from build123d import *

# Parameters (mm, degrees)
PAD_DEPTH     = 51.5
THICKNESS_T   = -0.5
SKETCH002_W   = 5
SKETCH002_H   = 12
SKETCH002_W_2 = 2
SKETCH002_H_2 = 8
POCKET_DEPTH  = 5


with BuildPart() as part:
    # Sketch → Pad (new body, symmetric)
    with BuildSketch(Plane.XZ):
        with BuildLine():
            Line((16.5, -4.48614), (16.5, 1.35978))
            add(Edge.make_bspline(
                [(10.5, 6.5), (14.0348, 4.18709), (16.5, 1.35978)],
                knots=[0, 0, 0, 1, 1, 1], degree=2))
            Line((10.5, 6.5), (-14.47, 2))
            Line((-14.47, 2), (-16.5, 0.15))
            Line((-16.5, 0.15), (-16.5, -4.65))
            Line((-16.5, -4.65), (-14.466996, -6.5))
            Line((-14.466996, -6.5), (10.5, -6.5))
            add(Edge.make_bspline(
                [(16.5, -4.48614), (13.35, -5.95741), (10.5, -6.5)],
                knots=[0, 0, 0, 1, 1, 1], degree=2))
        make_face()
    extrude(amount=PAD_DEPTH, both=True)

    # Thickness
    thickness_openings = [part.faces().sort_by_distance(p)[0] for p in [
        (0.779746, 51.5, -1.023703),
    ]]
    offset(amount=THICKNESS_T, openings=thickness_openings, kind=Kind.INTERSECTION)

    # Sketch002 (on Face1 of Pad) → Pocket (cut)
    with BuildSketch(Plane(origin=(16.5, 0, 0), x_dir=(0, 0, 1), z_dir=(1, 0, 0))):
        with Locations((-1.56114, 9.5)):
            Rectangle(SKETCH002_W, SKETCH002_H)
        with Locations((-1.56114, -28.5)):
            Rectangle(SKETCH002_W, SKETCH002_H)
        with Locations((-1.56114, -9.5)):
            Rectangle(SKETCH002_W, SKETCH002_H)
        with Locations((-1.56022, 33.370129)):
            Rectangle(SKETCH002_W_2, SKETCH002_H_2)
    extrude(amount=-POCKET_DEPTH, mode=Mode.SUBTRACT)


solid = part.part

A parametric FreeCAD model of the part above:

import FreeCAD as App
import Part
import Sketcher
Q = App.Units.Quantity


def faces_at(feature, points):
    """Names of the faces that lie closest to the given points."""
    faces = feature.Shape.Faces
    near = lambda p: min(range(len(faces)), key=lambda i: faces[i].distToShape(Part.Vertex(*p))[0])
    return sorted({f"Face{near(p) + 1}" for p in points})


def add_polygon(sketch, points):
    """Adds a closed chain of lines whose ends are joined by coincident constraints."""
    first, n = sketch.GeometryCount, len(points)
    for a, b in zip(points, points[1:] + points[:1]):
        sketch.addGeometry(Part.LineSegment(App.Vector(*a, 0), App.Vector(*b, 0)), False)
    for i in range(n):
        sketch.addConstraint(Sketcher.Constraint("Coincident", first + i, 2, first + (i + 1) % n, 1))

doc = App.newDocument("Part")
body = doc.addObject("PartDesign::Body", "Body")

sketch1 = body.newObject("Sketcher::SketchObject", "Sketch")
sketch1.AttachmentSupport = (doc.getObject("XZ_Plane"), [""])
sketch1.MapMode = "FlatFace"
sketch1.addGeometry([
    Part.LineSegment(App.Vector(16.5, -4.48614, 0), App.Vector(16.5, 1.35978, 0)),
    Part.BSplineCurve([App.Vector(10.5, 6.5, 0), App.Vector(14.0348, 4.18709, 0), App.Vector(16.5, 1.35978, 0)], [3, 3], [0, 1], False, 2, [1, 1, 1], False),
    Part.LineSegment(App.Vector(10.5, 6.5, 0), App.Vector(-14.47, 2, 0)),
    Part.LineSegment(App.Vector(-14.47, 2, 0), App.Vector(-16.5, 0.15, 0)),
    Part.LineSegment(App.Vector(-16.5, 0.15, 0), App.Vector(-16.5, -4.65, 0)),
    Part.LineSegment(App.Vector(-16.5, -4.65, 0), App.Vector(-14.466996, -6.5, 0)),
    Part.LineSegment(App.Vector(-14.466996, -6.5, 0), App.Vector(10.5, -6.5, 0)),
    Part.BSplineCurve([App.Vector(16.5, -4.48614, 0), App.Vector(13.35, -5.95741, 0), App.Vector(10.5, -6.5, 0)], [3, 3], [0, 1], False, 2, [1, 1, 1], False),
], False)
sketch1.addConstraint([
    Sketcher.Constraint("Block", 1),
    Sketcher.Constraint("Block", 7),
    Sketcher.Constraint("Coincident", 0, 2, 1, 2),
    Sketcher.Constraint("Coincident", 1, 1, 2, 1),
    Sketcher.Constraint("Coincident", 2, 2, 3, 1),
    Sketcher.Constraint("Coincident", 3, 2, 4, 1),
    Sketcher.Constraint("Coincident", 4, 2, 5, 1),
    Sketcher.Constraint("Coincident", 5, 2, 6, 1),
    Sketcher.Constraint("Coincident", 6, 2, 7, 2),
    Sketcher.Constraint("Coincident", 7, 1, 0, 1),
    Sketcher.Constraint("Vertical", 4),
    Sketcher.Constraint("Horizontal", 6),
    Sketcher.Constraint("DistanceY", 4, 2, 4, 1, Q("4.8 mm")),
    Sketcher.Constraint("DistanceY", -1, 1, 2, 2, Q("2 mm")),
    Sketcher.Constraint("DistanceX", 3, 2, 0, 2, Q("33 mm")),
    Sketcher.Constraint("DistanceX", 2, 2, -1, 1, Q("14.47 mm")),
    Sketcher.Constraint("DistanceY", -1, 1, 3, 2, Q("0.15 mm")),
    Sketcher.Constraint("DistanceX", 6, 1, 6, 2, Q("24.966996 mm")),
])
pad1 = body.newObject("PartDesign::Pad", "Pad")
pad1.Profile = sketch1
pad1.Length = 103
pad1.Midplane = True
doc.recompute()

thickness = body.newObject("PartDesign::Thickness", "Thickness")
thickness.Base = (pad1, faces_at(pad1, [(0, 51.5, 0)]))
thickness.Value = 0.5
thickness.Reversed = True
thickness.Join = "Intersection"

sketch2 = body.newObject("Sketcher::SketchObject", "Sketch001")
sketch2.AttachmentSupport = (doc.getObject("YZ_Plane"), [""])
sketch2.MapMode = "FlatFace"
sketch2.AttachmentOffset = App.Placement(App.Vector(0, 0, 16.5), App.Rotation())
add_polygon(sketch2, [(-15.5, -4.1), (-3.5, -4.1), (-3.5, 0.9), (-15.5, 0.9)])
add_polygon(sketch2, [(22.5, -4.1), (34.5, -4.1), (34.5, 0.9), (22.5, 0.9)])
add_polygon(sketch2, [(3.5, -4.1), (15.5, -4.1), (15.5, 0.9), (3.5, 0.9)])
add_polygon(sketch2, [(-37.4, -2.6), (-29.4, -2.6), (-29.4, -0.6), (-37.4, -0.6)])
sketch2.addConstraint([
    Sketcher.Constraint("Horizontal", 0),
    Sketcher.Constraint("Vertical", 1),
    Sketcher.Constraint("Horizontal", 2),
    Sketcher.Constraint("Vertical", 3),
    Sketcher.Constraint("Horizontal", 4),
    Sketcher.Constraint("Vertical", 5),
    Sketcher.Constraint("Horizontal", 6),
    Sketcher.Constraint("Vertical", 7),
    Sketcher.Constraint("Horizontal", 8),
    Sketcher.Constraint("Vertical", 9),
    Sketcher.Constraint("Horizontal", 10),
    Sketcher.Constraint("Vertical", 11),
    Sketcher.Constraint("Horizontal", 12),
    Sketcher.Constraint("Vertical", 13),
    Sketcher.Constraint("Horizontal", 14),
    Sketcher.Constraint("Vertical", 15),
    Sketcher.Constraint("Symmetric", 3, 2, 8, 2, -2),
    Sketcher.Constraint("Symmetric", 1, 2, 10, 2, -2),
    Sketcher.Constraint("Horizontal", 3, 2, 4, 2),
    Sketcher.Constraint("Horizontal", 2, 2, 5, 2),
    Sketcher.Constraint("Equal", 2, 4),
    Sketcher.Constraint("DistanceX", 0, 1, 0, 2, Q("12 mm")),
    Sketcher.Constraint("DistanceX", 12, 1, 12, 2, Q("8 mm")),
    Sketcher.Constraint("DistanceY", 1, 1, 1, 2, Q("5 mm")),
    Sketcher.Constraint("DistanceY", 13, 1, 13, 2, Q("2 mm")),
    Sketcher.Constraint("DistanceX", 0, 2, 4, 2, Q("38 mm")),
    Sketcher.Constraint("DistanceX", 8, 2, 7, 2, Q("7 mm")),
    Sketcher.Constraint("DistanceY", 0, 2, -1, 1, Q("4.06114 mm")),
    Sketcher.Constraint("DistanceX", 12, 2, -1, 1, Q("29.370129 mm")),
    Sketcher.Constraint("DistanceY", 12, 2, -1, 1, Q("2.56022 mm")),
])
pocket1 = body.newObject("PartDesign::Pocket", "Pocket")
pocket1.Profile = sketch2
pocket1.Length = 5

doc.recompute()
